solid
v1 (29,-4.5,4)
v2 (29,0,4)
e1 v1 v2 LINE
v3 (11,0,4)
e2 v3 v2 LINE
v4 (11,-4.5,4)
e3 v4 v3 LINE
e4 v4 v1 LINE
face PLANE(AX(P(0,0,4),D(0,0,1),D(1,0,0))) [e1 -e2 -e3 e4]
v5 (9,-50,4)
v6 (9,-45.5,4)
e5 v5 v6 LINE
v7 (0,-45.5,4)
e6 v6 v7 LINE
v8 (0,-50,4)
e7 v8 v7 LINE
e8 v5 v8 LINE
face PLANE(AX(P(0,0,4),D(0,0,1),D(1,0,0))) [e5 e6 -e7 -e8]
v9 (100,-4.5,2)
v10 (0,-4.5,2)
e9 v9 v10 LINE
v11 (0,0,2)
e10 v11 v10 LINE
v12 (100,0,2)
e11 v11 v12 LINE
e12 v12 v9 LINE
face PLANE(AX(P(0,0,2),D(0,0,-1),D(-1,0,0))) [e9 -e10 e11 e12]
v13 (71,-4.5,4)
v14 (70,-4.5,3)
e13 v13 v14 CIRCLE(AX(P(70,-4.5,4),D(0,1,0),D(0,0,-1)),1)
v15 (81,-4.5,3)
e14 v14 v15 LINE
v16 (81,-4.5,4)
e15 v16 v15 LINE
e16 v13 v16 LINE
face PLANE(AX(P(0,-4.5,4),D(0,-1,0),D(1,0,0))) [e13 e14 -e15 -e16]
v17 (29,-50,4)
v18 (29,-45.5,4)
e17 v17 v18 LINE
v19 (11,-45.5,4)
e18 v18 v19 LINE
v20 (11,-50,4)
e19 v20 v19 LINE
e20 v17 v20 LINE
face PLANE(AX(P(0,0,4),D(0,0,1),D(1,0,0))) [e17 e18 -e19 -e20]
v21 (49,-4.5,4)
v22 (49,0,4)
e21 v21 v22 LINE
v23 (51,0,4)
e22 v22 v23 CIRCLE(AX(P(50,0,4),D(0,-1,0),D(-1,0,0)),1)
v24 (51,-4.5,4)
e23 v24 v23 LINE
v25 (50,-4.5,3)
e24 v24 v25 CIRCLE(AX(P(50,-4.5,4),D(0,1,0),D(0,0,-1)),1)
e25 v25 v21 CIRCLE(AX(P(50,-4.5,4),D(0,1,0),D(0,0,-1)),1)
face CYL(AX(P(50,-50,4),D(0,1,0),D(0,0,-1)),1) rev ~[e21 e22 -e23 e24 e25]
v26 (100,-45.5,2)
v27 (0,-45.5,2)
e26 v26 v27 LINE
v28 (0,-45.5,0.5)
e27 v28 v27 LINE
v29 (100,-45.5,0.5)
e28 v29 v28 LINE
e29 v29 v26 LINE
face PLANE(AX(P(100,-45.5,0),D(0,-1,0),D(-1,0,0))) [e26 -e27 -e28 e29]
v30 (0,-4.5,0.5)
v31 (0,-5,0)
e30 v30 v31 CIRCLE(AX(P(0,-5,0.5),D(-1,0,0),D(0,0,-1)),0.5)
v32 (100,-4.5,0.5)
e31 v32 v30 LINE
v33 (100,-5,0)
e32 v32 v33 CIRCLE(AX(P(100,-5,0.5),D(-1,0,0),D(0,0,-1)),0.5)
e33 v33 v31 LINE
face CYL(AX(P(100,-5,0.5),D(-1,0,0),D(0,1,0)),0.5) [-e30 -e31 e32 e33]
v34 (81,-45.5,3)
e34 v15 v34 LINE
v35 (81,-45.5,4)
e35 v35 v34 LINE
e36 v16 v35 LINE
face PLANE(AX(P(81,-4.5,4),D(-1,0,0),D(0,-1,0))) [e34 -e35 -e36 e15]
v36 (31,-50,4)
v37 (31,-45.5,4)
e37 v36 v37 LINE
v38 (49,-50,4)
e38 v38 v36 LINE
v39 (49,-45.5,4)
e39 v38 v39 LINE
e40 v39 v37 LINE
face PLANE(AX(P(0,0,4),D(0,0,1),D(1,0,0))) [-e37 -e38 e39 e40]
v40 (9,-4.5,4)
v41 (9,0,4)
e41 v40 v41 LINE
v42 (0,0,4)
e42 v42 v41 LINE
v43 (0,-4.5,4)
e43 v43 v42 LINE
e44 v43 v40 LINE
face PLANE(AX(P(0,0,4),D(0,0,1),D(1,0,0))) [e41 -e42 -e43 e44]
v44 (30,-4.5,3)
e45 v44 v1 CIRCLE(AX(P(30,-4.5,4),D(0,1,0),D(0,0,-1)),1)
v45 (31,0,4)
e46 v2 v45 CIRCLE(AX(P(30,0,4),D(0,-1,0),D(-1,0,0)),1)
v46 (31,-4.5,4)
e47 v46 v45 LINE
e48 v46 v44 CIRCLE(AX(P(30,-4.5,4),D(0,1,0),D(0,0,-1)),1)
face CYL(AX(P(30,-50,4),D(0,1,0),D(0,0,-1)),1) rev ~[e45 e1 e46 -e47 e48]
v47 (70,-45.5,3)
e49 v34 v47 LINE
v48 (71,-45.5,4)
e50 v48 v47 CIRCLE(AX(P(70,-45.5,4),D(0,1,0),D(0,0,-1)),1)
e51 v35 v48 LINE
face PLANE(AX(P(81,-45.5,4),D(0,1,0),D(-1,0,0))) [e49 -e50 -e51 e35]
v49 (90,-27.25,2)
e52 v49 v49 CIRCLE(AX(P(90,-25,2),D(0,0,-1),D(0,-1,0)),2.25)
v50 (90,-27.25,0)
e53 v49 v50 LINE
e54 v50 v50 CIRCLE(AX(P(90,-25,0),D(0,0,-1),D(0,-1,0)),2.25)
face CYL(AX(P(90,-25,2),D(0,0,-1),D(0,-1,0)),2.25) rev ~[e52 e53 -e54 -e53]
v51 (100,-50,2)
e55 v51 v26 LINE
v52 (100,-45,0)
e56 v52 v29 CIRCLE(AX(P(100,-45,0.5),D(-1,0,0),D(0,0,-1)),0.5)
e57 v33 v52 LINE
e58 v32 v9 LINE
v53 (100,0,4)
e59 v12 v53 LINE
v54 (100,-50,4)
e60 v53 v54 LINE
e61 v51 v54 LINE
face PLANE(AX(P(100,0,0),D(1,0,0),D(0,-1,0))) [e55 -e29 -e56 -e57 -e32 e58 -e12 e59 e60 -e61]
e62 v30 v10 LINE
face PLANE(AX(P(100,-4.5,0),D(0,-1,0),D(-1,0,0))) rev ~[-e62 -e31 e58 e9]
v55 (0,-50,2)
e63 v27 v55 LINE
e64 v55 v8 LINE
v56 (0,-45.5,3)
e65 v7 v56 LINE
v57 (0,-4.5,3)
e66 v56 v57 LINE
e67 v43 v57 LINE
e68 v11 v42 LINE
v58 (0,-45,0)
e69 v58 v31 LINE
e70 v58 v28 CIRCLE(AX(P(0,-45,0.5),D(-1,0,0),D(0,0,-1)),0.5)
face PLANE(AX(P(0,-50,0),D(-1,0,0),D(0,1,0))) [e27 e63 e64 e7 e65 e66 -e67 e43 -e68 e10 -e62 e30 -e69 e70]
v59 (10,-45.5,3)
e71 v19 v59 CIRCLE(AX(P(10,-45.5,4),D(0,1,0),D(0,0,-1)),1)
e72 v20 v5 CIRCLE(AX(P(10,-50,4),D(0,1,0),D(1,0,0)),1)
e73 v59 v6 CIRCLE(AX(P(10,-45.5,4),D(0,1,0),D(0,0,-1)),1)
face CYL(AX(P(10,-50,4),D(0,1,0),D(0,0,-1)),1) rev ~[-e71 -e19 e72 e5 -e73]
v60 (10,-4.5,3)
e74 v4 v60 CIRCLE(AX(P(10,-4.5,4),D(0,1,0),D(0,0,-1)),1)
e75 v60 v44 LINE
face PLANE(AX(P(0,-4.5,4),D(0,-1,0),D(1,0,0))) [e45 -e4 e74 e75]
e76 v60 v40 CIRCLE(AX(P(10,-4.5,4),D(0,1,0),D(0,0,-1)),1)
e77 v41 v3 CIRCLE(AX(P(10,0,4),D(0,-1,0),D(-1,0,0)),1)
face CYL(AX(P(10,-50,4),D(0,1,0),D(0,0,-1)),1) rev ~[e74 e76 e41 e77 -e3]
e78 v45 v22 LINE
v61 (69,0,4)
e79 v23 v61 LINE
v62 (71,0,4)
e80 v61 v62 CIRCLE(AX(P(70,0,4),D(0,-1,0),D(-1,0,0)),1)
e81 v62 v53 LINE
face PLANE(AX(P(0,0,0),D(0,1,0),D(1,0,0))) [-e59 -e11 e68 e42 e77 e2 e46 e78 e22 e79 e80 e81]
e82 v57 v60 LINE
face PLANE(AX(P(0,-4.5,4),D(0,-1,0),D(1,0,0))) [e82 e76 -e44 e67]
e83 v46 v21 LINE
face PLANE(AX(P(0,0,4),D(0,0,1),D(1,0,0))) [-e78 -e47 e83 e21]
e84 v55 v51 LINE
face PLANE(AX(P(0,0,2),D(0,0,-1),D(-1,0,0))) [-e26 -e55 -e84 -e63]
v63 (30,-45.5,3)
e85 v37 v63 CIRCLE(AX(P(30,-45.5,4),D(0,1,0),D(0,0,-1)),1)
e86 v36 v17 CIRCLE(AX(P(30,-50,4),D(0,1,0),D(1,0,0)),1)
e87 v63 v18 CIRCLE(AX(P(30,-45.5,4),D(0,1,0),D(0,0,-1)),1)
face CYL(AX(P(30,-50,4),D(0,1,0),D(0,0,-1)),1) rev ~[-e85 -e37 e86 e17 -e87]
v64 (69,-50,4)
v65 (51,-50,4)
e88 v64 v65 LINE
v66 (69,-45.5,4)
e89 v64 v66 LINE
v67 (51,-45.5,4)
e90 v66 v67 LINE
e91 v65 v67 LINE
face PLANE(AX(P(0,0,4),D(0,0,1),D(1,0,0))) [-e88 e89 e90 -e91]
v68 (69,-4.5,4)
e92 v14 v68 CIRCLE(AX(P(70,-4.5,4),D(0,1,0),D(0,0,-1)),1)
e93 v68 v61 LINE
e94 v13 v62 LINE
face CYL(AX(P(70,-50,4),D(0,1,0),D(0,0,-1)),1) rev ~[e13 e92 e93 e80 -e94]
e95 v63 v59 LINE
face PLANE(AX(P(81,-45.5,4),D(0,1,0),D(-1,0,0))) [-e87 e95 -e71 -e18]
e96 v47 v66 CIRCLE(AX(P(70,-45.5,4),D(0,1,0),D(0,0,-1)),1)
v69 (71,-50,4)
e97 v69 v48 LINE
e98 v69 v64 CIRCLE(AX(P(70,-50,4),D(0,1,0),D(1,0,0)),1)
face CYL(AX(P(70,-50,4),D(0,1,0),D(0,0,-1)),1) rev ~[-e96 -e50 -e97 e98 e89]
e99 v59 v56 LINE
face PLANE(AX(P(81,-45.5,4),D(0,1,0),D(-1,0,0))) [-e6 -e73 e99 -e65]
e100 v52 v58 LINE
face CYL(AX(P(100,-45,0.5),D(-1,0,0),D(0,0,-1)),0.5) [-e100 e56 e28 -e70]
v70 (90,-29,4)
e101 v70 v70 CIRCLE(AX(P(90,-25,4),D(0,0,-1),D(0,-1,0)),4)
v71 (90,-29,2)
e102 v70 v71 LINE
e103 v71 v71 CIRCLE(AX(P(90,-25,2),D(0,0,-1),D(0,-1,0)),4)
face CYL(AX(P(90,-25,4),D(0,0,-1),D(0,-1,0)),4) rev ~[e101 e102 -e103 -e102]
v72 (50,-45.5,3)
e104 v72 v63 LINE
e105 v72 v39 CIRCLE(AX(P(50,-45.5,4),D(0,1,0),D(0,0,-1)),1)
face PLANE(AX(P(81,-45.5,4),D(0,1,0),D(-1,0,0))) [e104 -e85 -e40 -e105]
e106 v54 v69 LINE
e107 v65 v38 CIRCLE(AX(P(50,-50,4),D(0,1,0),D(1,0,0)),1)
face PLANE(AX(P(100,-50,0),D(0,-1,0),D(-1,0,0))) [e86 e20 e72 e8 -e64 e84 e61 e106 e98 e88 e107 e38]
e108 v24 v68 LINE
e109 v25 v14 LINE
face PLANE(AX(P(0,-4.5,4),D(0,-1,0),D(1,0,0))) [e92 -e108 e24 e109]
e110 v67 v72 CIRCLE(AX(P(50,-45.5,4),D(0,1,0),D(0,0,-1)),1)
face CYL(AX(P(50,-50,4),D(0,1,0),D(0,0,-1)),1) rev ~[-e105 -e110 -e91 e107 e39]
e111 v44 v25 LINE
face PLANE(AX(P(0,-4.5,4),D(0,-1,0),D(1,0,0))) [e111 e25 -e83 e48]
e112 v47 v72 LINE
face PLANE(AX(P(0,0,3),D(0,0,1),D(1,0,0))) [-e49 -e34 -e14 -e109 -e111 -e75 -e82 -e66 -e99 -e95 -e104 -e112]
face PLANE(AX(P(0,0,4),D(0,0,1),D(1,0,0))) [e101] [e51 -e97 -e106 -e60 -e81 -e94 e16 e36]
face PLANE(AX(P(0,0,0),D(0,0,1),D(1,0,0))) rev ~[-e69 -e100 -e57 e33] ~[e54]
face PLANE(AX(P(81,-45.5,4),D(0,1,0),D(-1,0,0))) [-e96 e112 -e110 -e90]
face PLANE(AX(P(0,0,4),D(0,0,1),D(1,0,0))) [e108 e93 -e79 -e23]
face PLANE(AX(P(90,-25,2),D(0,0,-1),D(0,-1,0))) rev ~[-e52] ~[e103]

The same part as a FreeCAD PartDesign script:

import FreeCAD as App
import Part
import Sketcher
Q = App.Units.Quantity


def edges_at(feature, points):
    """Names of the edges that pass closest to the given points."""
    edges = feature.Shape.Edges
    near = lambda p: min(range(len(edges)), key=lambda i: edges[i].distToShape(Part.Vertex(*p))[0])
    return sorted({f"Edge{near(p) + 1}" for p in points})


def add_polygon(sketch, points):
    """Adds a closed chain of lines whose ends are joined by coincident constraints."""
    first, n = sketch.GeometryCount, len(points)
    for a, b in zip(points, points[1:] + points[:1]):
        sketch.addGeometry(Part.LineSegment(App.Vector(*a, 0), App.Vector(*b, 0)), False)
    for i in range(n):
        sketch.addConstraint(Sketcher.Constraint("Coincident", first + i, 2, first + (i + 1) % n, 1))

doc = App.newDocument("Part")
body = doc.addObject("PartDesign::Body", "Body")

# Sketch on XY plane
sketch1 = doc.addObject("Sketcher::SketchObject", "Sketch")
body.addObject(sketch1)
sketch1.AttachmentSupport = (doc.XY_Plane, [""])
sketch1.MapMode = "FlatFace"
add_polygon(sketch1, [(100, 0), (0, 0), (0, -50), (100, -50)])  # lines 0-3
sketch1.addConstraint(Sketcher.Constraint("Horizontal", 0))
sketch1.addConstraint(Sketcher.Constraint("Vertical", 1))
sketch1.addConstraint(Sketcher.Constraint("Horizontal", 2))
sketch1.addConstraint(Sketcher.Constraint("Vertical", 3))
sketch1.addConstraint(Sketcher.Constraint("Coincident", 0, 2, -1, 1))
sketch1.addConstraint(Sketcher.Constraint("DistanceX", 0, 2, 0, 1, Q("100 mm")))
sketch1.addConstraint(Sketcher.Constraint("DistanceY", 1, 2, 1, 1, Q("50 mm")))
pad1 = doc.addObject("PartDesign::Pad", "Pad")
body.addObject(pad1)
pad1.Profile = sketch1
pad1.Length = 4

# Sketch on XY plane
sketch2 = doc.addObject("Sketcher::SketchObject", "Sketch001")
body.addObject(sketch2)
sketch2.AttachmentSupport = (doc.XY_Plane, [""])
sketch2.MapMode = "FlatFace"
add_polygon(sketch2, [(0, -4.5), (0, 0), (100, 0), (100, -4.5)])  # lines 0-3
add_polygon(sketch2, [(0, -50), (0, -45.5), (100, -45.5), (100, -50)])  # lines 4-7
sketch2.addConstraint(Sketcher.Constraint("Vertical", 0))
sketch2.addConstraint(Sketcher.Constraint("Horizontal", 1))
sketch2.addConstraint(Sketcher.Constraint("Vertical", 2))
sketch2.addConstraint(Sketcher.Constraint("Horizontal", 3))
sketch2.addConstraint(Sketcher.Constraint("Vertical", 4))
sketch2.addConstraint(Sketcher.Constraint("Horizontal", 5))
sketch2.addConstraint(Sketcher.Constraint("Vertical", 6))
sketch2.addConstraint(Sketcher.Constraint("Horizontal", 7))
sketch2.addConstraint(Sketcher.Constraint("Coincident", 0, 2, -1, 1))
sketch2.addConstraint(Sketcher.Constraint("PointOnObject", 4, 2, -2))
sketch2.addConstraint(Sketcher.Constraint("Vertical", 2, 2, 5, 2))
sketch2.addConstraint(Sketcher.Constraint("Equal", 2, 4))
sketch2.addConstraint(Sketcher.Constraint("DistanceY", 0, 1, 0, 2, Q("4.5 mm")))
sketch2.addConstraint(Sketcher.Constraint("DistanceX", 1, 1, 1, 2, Q("100 mm")))
sketch2.addConstraint(Sketcher.Constraint("DistanceY", 6, 2, -1, 1, Q("50 mm")))
pocket1 = doc.addObject("PartDesign::Pocket", "Pocket")
body.addObject(pocket1)
pocket1.Profile = sketch2
pocket1.Length = 2
pocket1.Reversed = True
doc.recompute()

fillet = doc.addObject("PartDesign::Fillet", "Fillet")
body.addObject(fillet)
fillet.Base = (pocket1, edges_at(pocket1, [(50, -45.5, 0), (50, -4.5, 0)]))
fillet.Radius = 0.5

# Sketch on XY plane
sketch3 = doc.addObject("Sketcher::SketchObject", "Sketch002")
body.addObject(sketch3)
sketch3.AttachmentSupport = (doc.XY_Plane, [""])
sketch3.MapMode = "FlatFace"
sketch3.AttachmentOffset = App.Placement(App.Vector(0, 0, 4), App.Rotation())
add_polygon(sketch3, [(0, -4), (0, -46), (81, -46), (81, -4)])  # lines 0-3
sketch3.addConstraint(Sketcher.Constraint("Vertical", 0))
sketch3.addConstraint(Sketcher.Constraint("Horizontal", 1))
sketch3.addConstraint(Sketcher.Constraint("Vertical", 2))
sketch3.addConstraint(Sketcher.Constraint("Horizontal", 3))
sketch3.addConstraint(Sketcher.Constraint("PointOnObject", 0, 2, -2))
sketch3.addConstraint(Sketcher.Constraint("DistanceX", 1, 1, 1, 2, Q("81 mm")))
sketch3.addConstraint(Sketcher.Constraint("DistanceY", 0, 2, 0, 1, Q("41 mm")))
sketch3.addConstraint(Sketcher.Constraint("DistanceY", 2, 2, -1, 1, Q("4.5 mm")))
pocket2 = doc.addObject("PartDesign::Pocket", "Pocket001")
body.addObject(pocket2)
pocket2.Profile = sketch3
pocket2.Length = 1

# Sketch on XY plane
sketch4 = doc.addObject("Sketcher::SketchObject", "Sketch003")
body.addObject(sketch4)
sketch4.AttachmentSupport = (doc.XY_Plane, [""])
sketch4.MapMode = "FlatFace"
sketch4.AttachmentOffset = App.Placement(App.Vector(0, 0, 4), App.Rotation())
sketch4.addGeometry(Part.Circle(App.Vector(90, -25, 0), App.Vector(0, 0, 1), 2.2), False)
sketch4.addConstraint(Sketcher.Constraint("Diameter", 0, Q("4.5 mm")))
sketch4.addConstraint(Sketcher.Constraint("DistanceX", -1, 1, 0, 3, Q("90 mm")))
sketch4.addConstraint(Sketcher.Constraint("DistanceY", 0, 3, -1, 1, Q("25 mm")))
doc.recompute()
hole = doc.addObject("PartDesign::Hole", "Hole")
body.addObject(hole)
hole.Profile = sketch4
hole.ThreadType = "None"
hole.Diameter = 4.5
hole.DepthType = "ThroughAll"
hole.HoleCutType = "Counterbore"
hole.HoleCutDiameter = 8
hole.HoleCutDepth = 2

# Sketch on XZ plane
sketch5 = doc.addObject("Sketcher::SketchObject", "Sketch004")
body.addObject(sketch5)
sketch5.AttachmentSupport = (doc.XZ_Plane, [""])
sketch5.MapMode = "FlatFace"
sketch5.AttachmentOffset = App.Placement(App.Vector(0, 0, 50), App.Rotation())
sketch5.addGeometry(Part.Circle(App.Vector(10, 4, 0), App.Vector(0, 0, 1), 1), False)
sketch5.addConstraint(Sketcher.Constraint("Diameter", 0, Q("2 mm")))
sketch5.addConstraint(Sketcher.Constraint("DistanceX", -1, 1, 0, 3, Q("10 mm")))
sketch5.addConstraint(Sketcher.Constraint("DistanceY", -1, 1, 0, 3, Q("4 mm")))
doc.recompute()
hole2 = doc.addObject("PartDesign::Hole", "Hole001")
body.addObject(hole2)
hole2.Profile = sketch5
hole2.ThreadType = "None"
hole2.Diameter = 2
hole2.DepthType = "ThroughAll"
doc.recompute()

linearpattern = doc.addObject("PartDesign::LinearPattern", "LinearPattern")
body.addObject(linearpattern)
linearpattern.Originals = [hole2]
linearpattern.Direction = (doc.X_Axis, [""])
linearpattern.Mode = "offset"
linearpattern.Offset = 20
linearpattern.Occurrences = 4
body.Tip = linearpattern

doc.recompute()
